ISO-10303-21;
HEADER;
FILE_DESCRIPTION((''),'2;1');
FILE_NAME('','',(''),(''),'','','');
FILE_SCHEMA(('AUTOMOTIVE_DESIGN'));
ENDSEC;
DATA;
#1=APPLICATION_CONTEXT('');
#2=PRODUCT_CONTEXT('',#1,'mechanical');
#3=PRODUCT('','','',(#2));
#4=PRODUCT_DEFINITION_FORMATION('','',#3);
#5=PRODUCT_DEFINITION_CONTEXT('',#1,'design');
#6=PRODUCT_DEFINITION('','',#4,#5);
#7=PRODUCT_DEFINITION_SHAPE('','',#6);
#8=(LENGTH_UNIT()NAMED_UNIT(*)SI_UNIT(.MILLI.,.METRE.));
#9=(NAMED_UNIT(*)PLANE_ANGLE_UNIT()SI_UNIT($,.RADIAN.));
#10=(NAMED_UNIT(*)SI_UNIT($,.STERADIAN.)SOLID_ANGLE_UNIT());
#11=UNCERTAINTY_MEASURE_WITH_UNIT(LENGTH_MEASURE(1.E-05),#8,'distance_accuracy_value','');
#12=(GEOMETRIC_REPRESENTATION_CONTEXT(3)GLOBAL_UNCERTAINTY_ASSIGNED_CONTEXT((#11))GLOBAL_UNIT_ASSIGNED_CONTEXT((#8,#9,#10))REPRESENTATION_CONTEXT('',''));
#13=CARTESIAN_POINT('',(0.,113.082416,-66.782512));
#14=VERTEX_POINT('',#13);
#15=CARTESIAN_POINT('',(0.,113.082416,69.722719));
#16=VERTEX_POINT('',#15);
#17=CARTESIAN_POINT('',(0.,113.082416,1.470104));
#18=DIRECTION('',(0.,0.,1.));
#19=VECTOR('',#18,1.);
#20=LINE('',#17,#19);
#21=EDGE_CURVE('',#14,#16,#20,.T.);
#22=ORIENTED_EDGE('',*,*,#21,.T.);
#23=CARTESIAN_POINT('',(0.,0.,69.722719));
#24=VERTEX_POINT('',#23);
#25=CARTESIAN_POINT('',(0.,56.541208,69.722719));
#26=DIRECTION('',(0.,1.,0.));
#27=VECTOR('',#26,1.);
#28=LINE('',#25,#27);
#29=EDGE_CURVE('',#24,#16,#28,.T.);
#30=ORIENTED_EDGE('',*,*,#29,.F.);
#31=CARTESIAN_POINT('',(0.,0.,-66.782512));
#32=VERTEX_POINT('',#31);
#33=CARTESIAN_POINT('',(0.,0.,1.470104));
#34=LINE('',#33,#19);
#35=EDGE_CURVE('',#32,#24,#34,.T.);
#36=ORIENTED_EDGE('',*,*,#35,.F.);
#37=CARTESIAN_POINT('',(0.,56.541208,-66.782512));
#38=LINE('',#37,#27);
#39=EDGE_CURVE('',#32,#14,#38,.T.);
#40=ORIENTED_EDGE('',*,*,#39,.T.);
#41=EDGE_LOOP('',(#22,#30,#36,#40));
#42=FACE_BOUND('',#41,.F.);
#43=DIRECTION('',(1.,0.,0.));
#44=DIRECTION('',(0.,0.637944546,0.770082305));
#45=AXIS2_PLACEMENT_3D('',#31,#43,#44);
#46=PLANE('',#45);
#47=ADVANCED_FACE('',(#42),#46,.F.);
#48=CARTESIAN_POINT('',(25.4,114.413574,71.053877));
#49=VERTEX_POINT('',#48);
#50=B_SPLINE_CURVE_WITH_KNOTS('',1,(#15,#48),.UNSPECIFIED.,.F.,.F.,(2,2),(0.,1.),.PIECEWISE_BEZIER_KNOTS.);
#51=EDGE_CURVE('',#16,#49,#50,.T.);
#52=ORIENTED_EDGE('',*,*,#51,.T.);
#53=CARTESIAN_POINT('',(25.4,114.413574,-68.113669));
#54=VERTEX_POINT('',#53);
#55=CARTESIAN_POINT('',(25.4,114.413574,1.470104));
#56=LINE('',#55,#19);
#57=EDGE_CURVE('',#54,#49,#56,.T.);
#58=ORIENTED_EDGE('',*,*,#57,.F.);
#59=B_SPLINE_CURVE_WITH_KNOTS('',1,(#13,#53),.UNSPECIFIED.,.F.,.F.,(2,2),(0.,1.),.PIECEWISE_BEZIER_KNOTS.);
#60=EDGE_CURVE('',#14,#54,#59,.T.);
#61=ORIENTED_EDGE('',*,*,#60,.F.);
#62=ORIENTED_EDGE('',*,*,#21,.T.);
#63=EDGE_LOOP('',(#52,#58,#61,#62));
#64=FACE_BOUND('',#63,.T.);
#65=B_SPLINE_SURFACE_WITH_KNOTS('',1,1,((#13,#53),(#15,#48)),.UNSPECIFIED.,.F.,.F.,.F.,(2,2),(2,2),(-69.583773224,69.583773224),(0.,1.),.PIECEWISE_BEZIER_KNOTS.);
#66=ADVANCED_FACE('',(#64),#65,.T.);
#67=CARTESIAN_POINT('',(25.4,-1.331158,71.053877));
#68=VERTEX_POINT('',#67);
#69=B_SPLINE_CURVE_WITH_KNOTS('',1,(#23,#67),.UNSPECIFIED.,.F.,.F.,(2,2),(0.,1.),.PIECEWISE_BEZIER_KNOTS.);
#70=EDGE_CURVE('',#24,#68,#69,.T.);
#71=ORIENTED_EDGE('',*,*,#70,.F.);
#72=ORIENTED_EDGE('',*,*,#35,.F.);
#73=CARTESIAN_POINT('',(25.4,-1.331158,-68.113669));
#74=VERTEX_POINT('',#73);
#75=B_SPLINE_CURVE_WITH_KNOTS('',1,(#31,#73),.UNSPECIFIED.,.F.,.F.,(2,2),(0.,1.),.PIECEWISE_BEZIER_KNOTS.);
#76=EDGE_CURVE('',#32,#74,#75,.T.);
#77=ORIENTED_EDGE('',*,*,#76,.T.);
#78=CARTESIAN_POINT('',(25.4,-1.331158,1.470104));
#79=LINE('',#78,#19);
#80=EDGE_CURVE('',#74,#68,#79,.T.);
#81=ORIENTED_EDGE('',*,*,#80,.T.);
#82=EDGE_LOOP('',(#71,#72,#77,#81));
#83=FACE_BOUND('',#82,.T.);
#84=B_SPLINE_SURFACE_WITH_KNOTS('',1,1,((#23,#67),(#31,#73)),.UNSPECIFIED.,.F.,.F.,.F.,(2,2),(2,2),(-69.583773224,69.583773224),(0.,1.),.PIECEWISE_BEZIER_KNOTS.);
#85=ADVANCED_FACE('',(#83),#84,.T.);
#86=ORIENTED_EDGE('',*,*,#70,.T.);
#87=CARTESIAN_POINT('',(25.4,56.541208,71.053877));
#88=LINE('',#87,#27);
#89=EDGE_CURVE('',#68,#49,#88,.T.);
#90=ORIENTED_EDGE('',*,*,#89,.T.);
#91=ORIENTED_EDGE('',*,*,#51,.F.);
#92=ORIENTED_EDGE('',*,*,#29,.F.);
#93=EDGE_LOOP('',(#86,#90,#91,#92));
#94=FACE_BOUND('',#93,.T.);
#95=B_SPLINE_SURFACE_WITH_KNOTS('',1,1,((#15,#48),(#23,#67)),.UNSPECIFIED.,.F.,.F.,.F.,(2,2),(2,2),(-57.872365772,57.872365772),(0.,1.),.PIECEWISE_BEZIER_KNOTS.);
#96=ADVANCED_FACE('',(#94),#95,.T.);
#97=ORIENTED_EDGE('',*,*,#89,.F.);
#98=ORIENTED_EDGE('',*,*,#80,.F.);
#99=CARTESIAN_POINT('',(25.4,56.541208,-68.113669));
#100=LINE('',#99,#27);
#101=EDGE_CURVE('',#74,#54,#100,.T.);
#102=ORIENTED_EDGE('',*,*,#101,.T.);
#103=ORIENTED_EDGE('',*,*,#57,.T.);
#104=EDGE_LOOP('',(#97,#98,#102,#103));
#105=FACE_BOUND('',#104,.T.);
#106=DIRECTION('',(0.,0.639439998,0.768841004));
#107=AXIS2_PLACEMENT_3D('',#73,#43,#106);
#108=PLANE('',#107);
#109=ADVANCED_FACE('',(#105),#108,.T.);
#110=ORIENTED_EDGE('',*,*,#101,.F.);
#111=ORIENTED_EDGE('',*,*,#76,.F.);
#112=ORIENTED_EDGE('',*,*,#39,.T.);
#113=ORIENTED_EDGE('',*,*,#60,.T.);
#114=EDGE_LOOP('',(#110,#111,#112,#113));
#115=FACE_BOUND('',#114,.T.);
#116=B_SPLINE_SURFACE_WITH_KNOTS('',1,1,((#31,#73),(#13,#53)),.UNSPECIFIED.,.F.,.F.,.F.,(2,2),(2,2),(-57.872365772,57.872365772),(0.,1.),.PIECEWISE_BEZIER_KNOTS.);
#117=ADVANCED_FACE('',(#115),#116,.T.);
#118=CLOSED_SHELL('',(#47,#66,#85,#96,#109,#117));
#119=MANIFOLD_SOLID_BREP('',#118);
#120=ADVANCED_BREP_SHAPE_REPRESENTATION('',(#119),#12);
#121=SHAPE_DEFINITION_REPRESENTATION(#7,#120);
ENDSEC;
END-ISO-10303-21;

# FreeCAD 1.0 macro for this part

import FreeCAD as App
import Part
import Sketcher

V = App.Vector
Q = App.Units.Quantity


def add_polygon(sketch, points):
    """Adds a closed chain of lines whose ends are joined by coincident constraints."""
    first, n = sketch.GeometryCount, len(points)
    for a, b in zip(points, points[1:] + points[:1]):
        sketch.addGeometry(Part.LineSegment(App.Vector(*a, 0), App.Vector(*b, 0)), False)
    for i in range(n):
        sketch.addConstraint(Sketcher.Constraint("Coincident", first + i, 2, first + (i + 1) % n, 1))

doc = App.newDocument("Part")
body = doc.addObject("PartDesign::Body", "Body")

# Sketch on YZ plane
sketch1 = body.newObject("Sketcher::SketchObject", "Sketch")
sketch1.AttachmentSupport = (doc.getObject("YZ_Plane"), [""])
sketch1.MapMode = "FlatFace"
add_polygon(sketch1, [(0, 70), (0, -67), (113, -67), (113, 70)])  # lines 0-3
sketch1.addConstraint([
    Sketcher.Constraint("Vertical", 0),
    Sketcher.Constraint("Horizontal", 1),
    Sketcher.Constraint("Vertical", 2),
    Sketcher.Constraint("Horizontal", 3),
    Sketcher.Constraint("PointOnObject", 0, 2, -2),
    Sketcher.Constraint("DistanceY", 0, 2, 0, 1, 136.505231),
    Sketcher.Constraint("DistanceX", 1, 1, 1, 2, 113.082416),
    Sketcher.Constraint("DistanceY", 0, 2, -1, 1, 66.782512),
])
pad1 = body.newObject("PartDesign::Pad", "Pad")
pad1.Profile = sketch1
pad1.Length = Q("1 in")
pad1.TaperAngle = 3

doc.recompute()
